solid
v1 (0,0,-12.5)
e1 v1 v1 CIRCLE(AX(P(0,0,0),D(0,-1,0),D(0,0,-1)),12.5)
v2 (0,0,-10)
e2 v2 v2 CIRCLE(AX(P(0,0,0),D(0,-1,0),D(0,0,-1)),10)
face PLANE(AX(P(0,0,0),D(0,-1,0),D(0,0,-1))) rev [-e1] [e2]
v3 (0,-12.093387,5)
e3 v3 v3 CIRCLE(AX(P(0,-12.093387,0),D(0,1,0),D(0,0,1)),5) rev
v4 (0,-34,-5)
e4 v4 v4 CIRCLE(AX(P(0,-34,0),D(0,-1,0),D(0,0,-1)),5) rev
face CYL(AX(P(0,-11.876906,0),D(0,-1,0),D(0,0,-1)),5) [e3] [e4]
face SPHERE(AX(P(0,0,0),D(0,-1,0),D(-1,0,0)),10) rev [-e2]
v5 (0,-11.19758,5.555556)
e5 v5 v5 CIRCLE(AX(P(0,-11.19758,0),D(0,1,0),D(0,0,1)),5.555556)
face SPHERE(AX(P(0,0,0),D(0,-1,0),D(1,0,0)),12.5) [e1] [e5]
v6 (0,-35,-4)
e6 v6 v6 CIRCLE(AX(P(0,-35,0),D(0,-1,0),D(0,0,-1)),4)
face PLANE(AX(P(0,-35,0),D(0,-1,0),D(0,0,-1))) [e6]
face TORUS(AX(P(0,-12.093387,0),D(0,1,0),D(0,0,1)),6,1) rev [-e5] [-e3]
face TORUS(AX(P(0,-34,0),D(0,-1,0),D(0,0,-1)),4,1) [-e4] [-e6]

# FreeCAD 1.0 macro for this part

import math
import FreeCAD as App
import Part
import Sketcher
from FreeCAD import Vector
Q = App.Units.Quantity


def edges_at(feature, points):
    """Names of the edges that pass closest to the given points."""
    edges = feature.Shape.Edges
    near = lambda p: min(range(len(edges)), key=lambda i: edges[i].distToShape(Part.Vertex(*p))[0])
    return sorted({f"Edge{near(p) + 1}" for p in points})

doc = App.newDocument("Part")
params = doc.addObject("Spreadsheet::Sheet", "Params")
for row, (alias, value) in enumerate([
    ("sketch1_radius", "10 mm"),
    ("sketch1_radius2", "12.5 mm"),
    ("sketch1_width", "5 mm"),
    ("sketch1_height", "25 mm"),
    ("revolution_angle", "360 deg"),
    ("fillet_radius", "1 mm"),
], start=1):
    params.set(f"A{row}", alias)
    params.set(f"B{row}", "=" + value)
    params.setAlias(f"B{row}", alias)

body = doc.addObject("PartDesign::Body", "Body")

sketch1 = doc.addObject("Sketcher::SketchObject", "Sketch")
body.addObject(sketch1)
sketch1.AttachmentSupport = (doc.XY_Plane, [""])
sketch1.MapMode = "FlatFace"
sketch1.addGeometry(Part.LineSegment(Vector(12.5, 0, 0), Vector(10, 0, 0)), False)
sketch1.addGeometry(Part.ArcOfCircle(Part.Circle(Vector(0, 0, 0), Vector(0, 0, 1), 10), math.radians(-90), math.radians(0)), False)
sketch1.addGeometry(Part.LineSegment(Vector(0, -10, 0), Vector(0, -35, 0)), False)
sketch1.addGeometry(Part.LineSegment(Vector(0, -35, 0), Vector(5, -35, 0)), False)
sketch1.addGeometry(Part.LineSegment(Vector(5, -35, 0), Vector(5, -11.5, 0)), False)
sketch1.addGeometry(Part.ArcOfCircle(Part.Circle(Vector(0, 0, 0), Vector(0, 0, 1), 12.5), math.radians(-66), math.radians(0)), False)
sketch1.addConstraint(Sketcher.Constraint("Coincident", 0, 2, 1, 2))
sketch1.addConstraint(Sketcher.Constraint("Coincident", 1, 1, 2, 1))
sketch1.addConstraint(Sketcher.Constraint("Coincident", 2, 2, 3, 1))
sketch1.addConstraint(Sketcher.Constraint("Coincident", 3, 2, 4, 1))
sketch1.addConstraint(Sketcher.Constraint("Coincident", 4, 2, 5, 1))
sketch1.addConstraint(Sketcher.Constraint("Coincident", 5, 2, 0, 1))
sketch1.addConstraint(Sketcher.Constraint("Horizontal", 0))
sketch1.addConstraint(Sketcher.Constraint("Vertical", 2))
sketch1.addConstraint(Sketcher.Constraint("Horizontal", 3))
sketch1.addConstraint(Sketcher.Constraint("Vertical", 4))
sketch1.addConstraint(Sketcher.Constraint("Coincident", 1, 3, -1, 1))
sketch1.addConstraint(Sketcher.Constraint("Coincident", 5, 3, -1, 1))
sketch1.addConstraint(Sketcher.Constraint("PointOnObject", 0, 2, -1))
sketch1.addConstraint(Sketcher.Constraint("PointOnObject", 1, 1, -2))
sketch1.addConstraint(Sketcher.Constraint("Radius", 1, Q("10 mm")))
sketch1.addConstraint(Sketcher.Constraint("Radius", 5, Q("12.5 mm")))
sketch1.addConstraint(Sketcher.Constraint("DistanceX", 3, 1, 3, 2, Q("5 mm")))
sketch1.addConstraint(Sketcher.Constraint("DistanceY", 2, 2, 2, 1, Q("25 mm")))
sketch1.setExpression("Constraints[14]", "Params.sketch1_radius")
sketch1.setExpression("Constraints[15]", "Params.sketch1_radius2")
sketch1.setExpression("Constraints[16]", "Params.sketch1_width")
sketch1.setExpression("Constraints[17]", "Params.sketch1_height")
revolution = doc.addObject("PartDesign::Revolution", "Revolution")
body.addObject(revolution)
revolution.Profile = sketch1
revolution.ReferenceAxis = (sketch1, ["V_Axis"])
revolution.setExpression("Angle", "Params.revolution_angle")
doc.recompute()

fillet = doc.addObject("PartDesign::Fillet", "Fillet")
body.addObject(fillet)
fillet.Base = (revolution, edges_at(revolution, [(0, -11.456, 5), (0, -35, 5)]))
fillet.setExpression("Radius", "Params.fillet_radius")

doc.recompute()
